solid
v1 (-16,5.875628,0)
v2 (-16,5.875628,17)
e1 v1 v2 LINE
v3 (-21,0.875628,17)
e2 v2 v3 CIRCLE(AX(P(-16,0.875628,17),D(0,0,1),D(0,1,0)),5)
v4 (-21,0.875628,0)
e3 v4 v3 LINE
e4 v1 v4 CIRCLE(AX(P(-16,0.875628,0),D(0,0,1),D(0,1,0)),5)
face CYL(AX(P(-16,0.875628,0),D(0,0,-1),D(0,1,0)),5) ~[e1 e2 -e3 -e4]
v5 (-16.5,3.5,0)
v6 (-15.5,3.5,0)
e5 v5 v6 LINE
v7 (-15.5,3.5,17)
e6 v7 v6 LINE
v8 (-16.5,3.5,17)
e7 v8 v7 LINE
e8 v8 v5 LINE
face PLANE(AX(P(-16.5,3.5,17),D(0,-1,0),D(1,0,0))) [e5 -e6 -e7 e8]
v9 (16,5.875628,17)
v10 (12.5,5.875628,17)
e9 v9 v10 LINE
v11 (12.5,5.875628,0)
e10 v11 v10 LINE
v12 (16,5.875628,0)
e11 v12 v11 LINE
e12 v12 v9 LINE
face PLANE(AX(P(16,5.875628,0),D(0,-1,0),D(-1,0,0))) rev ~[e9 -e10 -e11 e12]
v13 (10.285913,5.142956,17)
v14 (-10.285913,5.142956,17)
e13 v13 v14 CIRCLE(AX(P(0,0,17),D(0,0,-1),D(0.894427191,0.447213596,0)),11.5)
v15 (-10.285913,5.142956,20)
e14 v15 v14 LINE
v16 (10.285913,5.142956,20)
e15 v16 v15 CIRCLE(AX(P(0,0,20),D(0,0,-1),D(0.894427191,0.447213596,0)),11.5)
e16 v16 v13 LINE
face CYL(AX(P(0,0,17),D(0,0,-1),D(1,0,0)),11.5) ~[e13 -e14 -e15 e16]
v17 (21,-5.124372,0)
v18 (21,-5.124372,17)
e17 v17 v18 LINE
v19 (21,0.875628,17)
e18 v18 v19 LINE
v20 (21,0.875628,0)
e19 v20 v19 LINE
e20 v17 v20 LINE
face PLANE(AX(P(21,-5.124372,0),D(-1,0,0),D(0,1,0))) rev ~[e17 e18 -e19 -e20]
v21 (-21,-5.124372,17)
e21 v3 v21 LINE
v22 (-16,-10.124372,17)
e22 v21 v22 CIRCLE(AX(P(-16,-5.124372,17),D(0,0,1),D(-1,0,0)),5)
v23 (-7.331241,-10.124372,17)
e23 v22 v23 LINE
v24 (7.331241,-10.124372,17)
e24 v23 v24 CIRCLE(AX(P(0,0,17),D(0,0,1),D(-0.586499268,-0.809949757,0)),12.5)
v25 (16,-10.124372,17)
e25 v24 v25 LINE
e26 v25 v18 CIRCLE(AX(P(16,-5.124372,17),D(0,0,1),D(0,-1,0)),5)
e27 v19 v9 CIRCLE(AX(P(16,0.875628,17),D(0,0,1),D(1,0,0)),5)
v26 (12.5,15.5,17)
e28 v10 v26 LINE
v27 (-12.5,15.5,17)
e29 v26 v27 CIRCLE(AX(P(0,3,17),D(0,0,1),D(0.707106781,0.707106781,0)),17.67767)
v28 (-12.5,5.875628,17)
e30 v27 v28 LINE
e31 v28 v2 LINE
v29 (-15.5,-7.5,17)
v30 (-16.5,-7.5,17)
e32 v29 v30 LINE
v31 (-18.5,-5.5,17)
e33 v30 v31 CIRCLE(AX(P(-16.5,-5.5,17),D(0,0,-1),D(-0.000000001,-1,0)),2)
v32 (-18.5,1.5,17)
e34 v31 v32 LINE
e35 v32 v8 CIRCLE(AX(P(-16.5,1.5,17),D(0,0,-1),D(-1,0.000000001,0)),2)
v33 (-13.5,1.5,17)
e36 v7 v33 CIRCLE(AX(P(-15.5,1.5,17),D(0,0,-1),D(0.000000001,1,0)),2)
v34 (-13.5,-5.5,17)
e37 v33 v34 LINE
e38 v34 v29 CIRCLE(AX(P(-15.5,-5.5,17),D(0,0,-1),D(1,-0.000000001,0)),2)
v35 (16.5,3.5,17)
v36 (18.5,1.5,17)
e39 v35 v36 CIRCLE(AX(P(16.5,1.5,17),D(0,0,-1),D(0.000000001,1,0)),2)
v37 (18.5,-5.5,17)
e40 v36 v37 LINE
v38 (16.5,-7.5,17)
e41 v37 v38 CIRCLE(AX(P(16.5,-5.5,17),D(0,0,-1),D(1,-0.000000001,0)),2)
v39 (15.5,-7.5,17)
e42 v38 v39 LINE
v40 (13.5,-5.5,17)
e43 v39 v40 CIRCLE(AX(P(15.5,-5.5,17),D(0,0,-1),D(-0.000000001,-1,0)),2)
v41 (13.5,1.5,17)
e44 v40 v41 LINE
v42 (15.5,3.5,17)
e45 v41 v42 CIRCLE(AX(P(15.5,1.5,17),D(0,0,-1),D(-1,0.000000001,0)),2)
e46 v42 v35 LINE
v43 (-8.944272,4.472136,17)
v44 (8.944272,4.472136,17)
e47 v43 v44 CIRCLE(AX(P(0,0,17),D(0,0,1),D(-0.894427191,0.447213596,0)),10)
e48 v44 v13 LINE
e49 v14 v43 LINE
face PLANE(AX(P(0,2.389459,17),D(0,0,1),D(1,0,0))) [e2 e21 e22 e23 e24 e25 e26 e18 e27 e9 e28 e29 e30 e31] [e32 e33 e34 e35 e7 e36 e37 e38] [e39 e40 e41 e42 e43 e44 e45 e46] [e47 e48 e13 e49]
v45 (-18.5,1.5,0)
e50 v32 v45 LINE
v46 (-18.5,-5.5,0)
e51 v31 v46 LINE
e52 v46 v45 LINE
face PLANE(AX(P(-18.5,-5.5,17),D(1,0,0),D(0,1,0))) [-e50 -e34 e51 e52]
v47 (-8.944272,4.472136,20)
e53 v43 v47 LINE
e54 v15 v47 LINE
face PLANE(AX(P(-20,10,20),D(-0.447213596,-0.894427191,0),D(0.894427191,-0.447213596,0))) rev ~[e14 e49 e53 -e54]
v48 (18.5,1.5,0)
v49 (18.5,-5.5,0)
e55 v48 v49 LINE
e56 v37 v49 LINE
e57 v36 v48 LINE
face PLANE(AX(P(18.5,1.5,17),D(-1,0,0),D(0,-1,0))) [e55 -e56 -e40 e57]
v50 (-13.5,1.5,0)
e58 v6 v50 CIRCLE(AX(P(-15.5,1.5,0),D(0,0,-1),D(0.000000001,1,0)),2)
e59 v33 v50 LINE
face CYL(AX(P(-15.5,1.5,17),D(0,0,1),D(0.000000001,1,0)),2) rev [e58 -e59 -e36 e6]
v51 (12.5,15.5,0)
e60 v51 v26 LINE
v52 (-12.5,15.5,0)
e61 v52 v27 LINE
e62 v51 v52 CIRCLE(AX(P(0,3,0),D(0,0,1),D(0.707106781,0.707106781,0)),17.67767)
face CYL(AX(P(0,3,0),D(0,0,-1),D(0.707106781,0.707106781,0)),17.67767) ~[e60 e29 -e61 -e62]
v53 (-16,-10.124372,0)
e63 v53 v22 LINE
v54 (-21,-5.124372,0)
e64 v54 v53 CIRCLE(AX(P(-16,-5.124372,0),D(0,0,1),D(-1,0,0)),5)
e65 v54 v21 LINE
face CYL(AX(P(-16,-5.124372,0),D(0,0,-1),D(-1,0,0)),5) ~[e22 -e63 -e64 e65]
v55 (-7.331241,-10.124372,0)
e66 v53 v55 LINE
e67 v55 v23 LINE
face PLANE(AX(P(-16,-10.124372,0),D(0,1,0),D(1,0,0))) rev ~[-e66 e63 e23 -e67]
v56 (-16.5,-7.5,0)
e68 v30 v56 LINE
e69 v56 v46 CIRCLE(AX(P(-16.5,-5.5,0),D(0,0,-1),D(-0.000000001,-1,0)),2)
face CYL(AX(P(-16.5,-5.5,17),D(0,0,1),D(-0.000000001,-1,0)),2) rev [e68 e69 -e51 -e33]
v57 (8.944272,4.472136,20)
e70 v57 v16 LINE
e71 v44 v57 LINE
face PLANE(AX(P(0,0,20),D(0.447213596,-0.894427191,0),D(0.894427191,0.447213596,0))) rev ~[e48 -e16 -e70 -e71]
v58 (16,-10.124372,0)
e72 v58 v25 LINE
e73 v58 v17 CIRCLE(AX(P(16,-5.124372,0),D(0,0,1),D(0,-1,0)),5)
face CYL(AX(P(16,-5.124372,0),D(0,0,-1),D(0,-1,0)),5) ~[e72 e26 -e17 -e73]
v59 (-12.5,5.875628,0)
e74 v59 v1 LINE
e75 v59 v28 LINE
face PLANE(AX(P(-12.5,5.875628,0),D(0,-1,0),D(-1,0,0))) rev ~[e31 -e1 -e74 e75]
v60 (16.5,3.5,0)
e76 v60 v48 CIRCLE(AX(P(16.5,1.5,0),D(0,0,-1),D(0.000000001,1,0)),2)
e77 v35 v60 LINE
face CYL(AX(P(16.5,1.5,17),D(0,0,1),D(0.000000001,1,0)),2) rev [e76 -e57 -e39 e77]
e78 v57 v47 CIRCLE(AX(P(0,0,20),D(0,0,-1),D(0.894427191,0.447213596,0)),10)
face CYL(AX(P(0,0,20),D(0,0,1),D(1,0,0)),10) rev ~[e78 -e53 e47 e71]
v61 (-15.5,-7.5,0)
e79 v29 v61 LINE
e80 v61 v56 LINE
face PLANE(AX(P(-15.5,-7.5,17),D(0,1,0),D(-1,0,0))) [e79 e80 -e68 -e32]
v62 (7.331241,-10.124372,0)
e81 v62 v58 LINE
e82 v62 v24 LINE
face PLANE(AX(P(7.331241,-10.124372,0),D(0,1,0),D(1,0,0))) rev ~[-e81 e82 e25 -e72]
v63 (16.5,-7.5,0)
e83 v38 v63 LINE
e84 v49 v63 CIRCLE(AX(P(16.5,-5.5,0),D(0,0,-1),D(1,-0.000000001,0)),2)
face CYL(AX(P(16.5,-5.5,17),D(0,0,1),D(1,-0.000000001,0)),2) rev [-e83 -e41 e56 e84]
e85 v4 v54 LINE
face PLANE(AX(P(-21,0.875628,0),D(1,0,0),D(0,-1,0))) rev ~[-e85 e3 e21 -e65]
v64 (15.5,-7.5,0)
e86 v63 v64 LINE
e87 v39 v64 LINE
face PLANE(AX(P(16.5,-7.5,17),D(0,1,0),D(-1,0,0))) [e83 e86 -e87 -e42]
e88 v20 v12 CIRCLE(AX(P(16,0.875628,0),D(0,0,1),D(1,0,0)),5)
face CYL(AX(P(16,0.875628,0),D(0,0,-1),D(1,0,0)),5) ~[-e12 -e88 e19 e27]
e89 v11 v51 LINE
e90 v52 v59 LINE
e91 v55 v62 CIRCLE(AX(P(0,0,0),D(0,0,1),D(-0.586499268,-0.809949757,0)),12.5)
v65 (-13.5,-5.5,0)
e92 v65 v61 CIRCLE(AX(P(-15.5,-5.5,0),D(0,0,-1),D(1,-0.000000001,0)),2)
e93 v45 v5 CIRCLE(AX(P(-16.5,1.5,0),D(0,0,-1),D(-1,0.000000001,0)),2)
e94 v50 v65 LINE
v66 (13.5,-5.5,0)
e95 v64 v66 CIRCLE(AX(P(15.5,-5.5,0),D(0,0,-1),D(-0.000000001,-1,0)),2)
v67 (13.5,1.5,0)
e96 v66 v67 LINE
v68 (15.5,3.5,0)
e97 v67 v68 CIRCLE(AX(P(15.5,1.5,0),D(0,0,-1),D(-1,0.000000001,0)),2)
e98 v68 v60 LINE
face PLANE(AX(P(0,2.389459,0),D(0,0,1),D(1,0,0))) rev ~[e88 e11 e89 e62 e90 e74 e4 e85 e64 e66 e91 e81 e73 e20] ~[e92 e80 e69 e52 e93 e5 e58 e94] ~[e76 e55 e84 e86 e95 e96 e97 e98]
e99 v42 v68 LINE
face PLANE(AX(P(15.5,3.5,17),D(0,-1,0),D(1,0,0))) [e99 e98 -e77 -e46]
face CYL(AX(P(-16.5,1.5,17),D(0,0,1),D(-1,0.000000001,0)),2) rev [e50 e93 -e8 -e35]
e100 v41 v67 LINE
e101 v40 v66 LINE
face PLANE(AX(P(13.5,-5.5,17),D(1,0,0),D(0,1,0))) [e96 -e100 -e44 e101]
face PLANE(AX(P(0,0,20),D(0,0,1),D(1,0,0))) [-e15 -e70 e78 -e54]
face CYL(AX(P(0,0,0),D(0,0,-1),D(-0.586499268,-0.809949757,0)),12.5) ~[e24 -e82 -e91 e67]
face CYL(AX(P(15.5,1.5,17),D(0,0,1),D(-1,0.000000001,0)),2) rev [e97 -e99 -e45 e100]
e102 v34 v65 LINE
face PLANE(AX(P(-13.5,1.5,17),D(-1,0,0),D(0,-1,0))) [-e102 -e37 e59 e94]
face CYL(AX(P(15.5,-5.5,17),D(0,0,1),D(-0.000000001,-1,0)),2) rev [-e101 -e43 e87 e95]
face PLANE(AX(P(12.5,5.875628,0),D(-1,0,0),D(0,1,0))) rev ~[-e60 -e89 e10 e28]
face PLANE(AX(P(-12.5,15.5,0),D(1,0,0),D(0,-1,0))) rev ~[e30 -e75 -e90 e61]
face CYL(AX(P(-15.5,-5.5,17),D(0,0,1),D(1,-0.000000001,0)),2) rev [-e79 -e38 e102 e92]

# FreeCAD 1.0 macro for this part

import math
import FreeCAD as App
import Part
import Sketcher
Q = App.Units.Quantity

doc = App.newDocument("Part")
body = doc.addObject("PartDesign::Body", "Body")

# Sketch on XY plane
sketch1 = body.newObject("Sketcher::SketchObject", "Sketch")
sketch1.AttachmentSupport = (doc.getObject("XY_Plane"), [""])
sketch1.MapMode = "FlatFace"
sketch1.addGeometry([
    Part.LineSegment(App.Vector(-16, -10.1, 0), App.Vector(-7.3, -10.1, 0)),  # 0
    Part.ArcOfCircle(Part.Circle(App.Vector(0, 0, 0), App.Vector(0, 0, 1), 12.5), math.radians(-126), math.radians(-54)),  # 1
    Part.LineSegment(App.Vector(7.3, -10.1, 0), App.Vector(16, -10.1, 0)),  # 2
    Part.ArcOfCircle(Part.Circle(App.Vector(16, -5.1, 0), App.Vector(0, 0, 1), 5), math.radians(-90), math.radians(0)),  # 3
    Part.LineSegment(App.Vector(21, -5.1, 0), App.Vector(21, 0.9, 0)),  # 4
    Part.ArcOfCircle(Part.Circle(App.Vector(16, 0.9, 0), App.Vector(0, 0, 1), 5), math.radians(0), math.radians(90)),  # 5
    Part.LineSegment(App.Vector(16, 5.9, 0), App.Vector(12.5, 5.9, 0)),  # 6
    Part.LineSegment(App.Vector(12.5, 5.9, 0), App.Vector(12.5, 15.5, 0)),  # 7
    Part.ArcOfCircle(Part.Circle(App.Vector(0, 3, 0), App.Vector(0, 0, 1), 17.7), math.radians(45), math.radians(135)),  # 8
    Part.LineSegment(App.Vector(-12.5, 15.5, 0), App.Vector(-12.5, 5.9, 0)),  # 9
    Part.LineSegment(App.Vector(-12.5, 5.9, 0), App.Vector(-16, 5.9, 0)),  # 10
    Part.ArcOfCircle(Part.Circle(App.Vector(-16, 0.9, 0), App.Vector(0, 0, 1), 5), math.radians(90), math.radians(180)),  # 11
    Part.LineSegment(App.Vector(-21, 0.9, 0), App.Vector(-21, -5.1, 0)),  # 12
    Part.ArcOfCircle(Part.Circle(App.Vector(-16, -5.1, 0), App.Vector(0, 0, 1), 5), math.radians(180), math.radians(270)),  # 13
], False)
sketch1.addConstraint([
    Sketcher.Constraint("Coincident", 0, 2, 1, 1),
    Sketcher.Constraint("Coincident", 1, 2, 2, 1),
    Sketcher.Constraint("Tangent", 2, 2, 3, 1),
    Sketcher.Constraint("Tangent", 3, 2, 4, 1),
    Sketcher.Constraint("Tangent", 4, 2, 5, 1),
    Sketcher.Constraint("Tangent", 5, 2, 6, 1),
    Sketcher.Constraint("Coincident", 6, 2, 7, 1),
    Sketcher.Constraint("Coincident", 7, 2, 8, 1),
    Sketcher.Constraint("Coincident", 8, 2, 9, 1),
    Sketcher.Constraint("Coincident", 9, 2, 10, 1),
    Sketcher.Constraint("Tangent", 10, 2, 11, 1),
    Sketcher.Constraint("Tangent", 11, 2, 12, 1),
    Sketcher.Constraint("Tangent", 12, 2, 13, 1),
    Sketcher.Constraint("Tangent", 13, 2, 0, 1),
    Sketcher.Constraint("Horizontal", 0),
    Sketcher.Constraint("Horizontal", 2),
    Sketcher.Constraint("Vertical", 4),
    Sketcher.Constraint("Horizontal", 6),
    Sketcher.Constraint("Vertical", 7),
    Sketcher.Constraint("Vertical", 9),
    Sketcher.Constraint("Horizontal", 10),
    Sketcher.Constraint("Vertical", 12),
    Sketcher.Constraint("Coincident", 1, 3, -1, 1),
    Sketcher.Constraint("Equal", 3, 5),
    Sketcher.Constraint("Equal", 5, 11),
    Sketcher.Constraint("Equal", 11, 13),
    Sketcher.Constraint("Symmetric", 5, 3, 11, 3, -2),
    Sketcher.Constraint("Symmetric", 7, 2, 8, 2, -2),
    Sketcher.Constraint("Horizontal", 3, 3, 13, 3),
    Sketcher.Constraint("Radius", 3, Q("5 mm")),
    Sketcher.Constraint("Radius", 1, Q("12.5 mm")),
    Sketcher.Constraint("DistanceY", 4, 1, 4, 2, Q("6 mm")),
    Sketcher.Constraint("DistanceX", 6, 2, 6, 1, Q("3.5 mm")),
    Sketcher.Constraint("DistanceX", -1, 1, 3, 3, Q("16 mm")),
    Sketcher.Constraint("DistanceY", -1, 1, 8, 3, Q("3 mm")),
    Sketcher.Constraint("DistanceY", -1, 1, 7, 2, Q("15.5 mm")),
    Sketcher.Constraint("DistanceX", 0, 1, 0, 2, Q("8.668759 mm")),
])
pad1 = body.newObject("PartDesign::Pad", "Pad")
pad1.Profile = sketch1
pad1.Length = 17

# Sketch on XY plane
sketch2 = body.newObject("Sketcher::SketchObject", "Sketch001")
sketch2.AttachmentSupport = (doc.getObject("XY_Plane"), [""])
sketch2.MapMode = "FlatFace"
sketch2.AttachmentOffset = App.Placement(App.Vector(0, 0, 17), App.Rotation())
sketch2.addGeometry([
    Part.LineSegment(App.Vector(-15.5, 3.5, 0), App.Vector(-16.5, 3.5, 0)),  # 0
    Part.ArcOfCircle(Part.Circle(App.Vector(-16.5, 1.5, 0), App.Vector(0, 0, 1), 2), math.radians(90), math.radians(180)),  # 1
    Part.LineSegment(App.Vector(-18.5, 1.5, 0), App.Vector(-18.5, -5.5, 0)),  # 2
    Part.ArcOfCircle(Part.Circle(App.Vector(-16.5, -5.5, 0), App.Vector(0, 0, 1), 2), math.radians(-180), math.radians(-90)),  # 3
    Part.LineSegment(App.Vector(-16.5, -7.5, 0), App.Vector(-15.5, -7.5, 0)),  # 4
    Part.ArcOfCircle(Part.Circle(App.Vector(-15.5, -5.5, 0), App.Vector(0, 0, 1), 2), math.radians(-90), math.radians(0)),  # 5
    Part.LineSegment(App.Vector(-13.5, -5.5, 0), App.Vector(-13.5, 1.5, 0)),  # 6
    Part.ArcOfCircle(Part.Circle(App.Vector(-15.5, 1.5, 0), App.Vector(0, 0, 1), 2), math.radians(0), math.radians(90)),  # 7
    Part.LineSegment(App.Vector(16.5, 3.5, 0), App.Vector(15.5, 3.5, 0)),  # 8
    Part.ArcOfCircle(Part.Circle(App.Vector(15.5, 1.5, 0), App.Vector(0, 0, 1), 2), math.radians(90), math.radians(180)),  # 9
    Part.LineSegment(App.Vector(13.5, 1.5, 0), App.Vector(13.5, -5.5, 0)),  # 10
    Part.ArcOfCircle(Part.Circle(App.Vector(15.5, -5.5, 0), App.Vector(0, 0, 1), 2), math.radians(-180), math.radians(-90)),  # 11
    Part.LineSegment(App.Vector(15.5, -7.5, 0), App.Vector(16.5, -7.5, 0)),  # 12
    Part.ArcOfCircle(Part.Circle(App.Vector(16.5, -5.5, 0), App.Vector(0, 0, 1), 2), math.radians(-90), math.radians(0)),  # 13
    Part.LineSegment(App.Vector(18.5, -5.5, 0), App.Vector(18.5, 1.5, 0)),  # 14
    Part.ArcOfCircle(Part.Circle(App.Vector(16.5, 1.5, 0), App.Vector(0, 0, 1), 2), math.radians(0), math.radians(90)),  # 15
], False)
sketch2.addConstraint([
    Sketcher.Constraint("Tangent", 0, 2, 1, 1),
    Sketcher.Constraint("Tangent", 1, 2, 2, 1),
    Sketcher.Constraint("Tangent", 2, 2, 3, 1),
    Sketcher.Constraint("Tangent", 3, 2, 4, 1),
    Sketcher.Constraint("Tangent", 4, 2, 5, 1),
    Sketcher.Constraint("Tangent", 5, 2, 6, 1),
    Sketcher.Constraint("Tangent", 6, 2, 7, 1),
    Sketcher.Constraint("Tangent", 7, 2, 0, 1),
    Sketcher.Constraint("Tangent", 8, 2, 9, 1),
    Sketcher.Constraint("Tangent", 9, 2, 10, 1),
    Sketcher.Constraint("Tangent", 10, 2, 11, 1),
    Sketcher.Constraint("Tangent", 11, 2, 12, 1),
    Sketcher.Constraint("Tangent", 12, 2, 13, 1),
    Sketcher.Constraint("Tangent", 13, 2, 14, 1),
    Sketcher.Constraint("Tangent", 14, 2, 15, 1),
    Sketcher.Constraint("Tangent", 15, 2, 8, 1),
    Sketcher.Constraint("Horizontal", 0),
    Sketcher.Constraint("Vertical", 2),
    Sketcher.Constraint("Horizontal", 4),
    Sketcher.Constraint("Vertical", 6),
    Sketcher.Constraint("Horizontal", 8),
    Sketcher.Constraint("Vertical", 10),
    Sketcher.Constraint("Horizontal", 12),
    Sketcher.Constraint("Vertical", 14),
    Sketcher.Constraint("Equal", 1, 3),
    Sketcher.Constraint("Equal", 3, 5),
    Sketcher.Constraint("Equal", 5, 7),
    Sketcher.Constraint("Equal", 7, 9),
    Sketcher.Constraint("Equal", 9, 11),
    Sketcher.Constraint("Equal", 11, 13),
    Sketcher.Constraint("Equal", 13, 15),
    Sketcher.Constraint("Symmetric", 7, 3, 9, 3, -2),
    Sketcher.Constraint("Symmetric", 3, 3, 13, 3, -2),
    Sketcher.Constraint("Radius", 1, Q("2 mm")),
    Sketcher.Constraint("DistanceX", 0, 2, 0, 1, Q("1 mm")),
    Sketcher.Constraint("DistanceY", 2, 2, 2, 1, Q("7 mm")),
    Sketcher.Constraint("DistanceX", 7, 3, 9, 3, Q("31 mm")),
    Sketcher.Constraint("DistanceY", -1, 1, 1, 3, Q("1.5 mm")),
])
pocket1 = body.newObject("PartDesign::Pocket", "Pocket")
pocket1.Profile = sketch2
pocket1.Length = 17

# Sketch on XY plane
sketch3 = body.newObject("Sketcher::SketchObject", "Sketch002")
sketch3.AttachmentSupport = (doc.getObject("XY_Plane"), [""])
sketch3.MapMode = "FlatFace"
sketch3.AttachmentOffset = App.Placement(App.Vector(0, 0, 17), App.Rotation())
sketch3.addGeometry(Part.Circle(App.Vector(0, 0, 0), App.Vector(0, 0, 1), 12), False)
sketch3.addConstraint([
    Sketcher.Constraint("Coincident", 0, 3, -1, 1),
    Sketcher.Constraint("Diameter", 0, Q("23 mm")),
])
pad2 = body.newObject("PartDesign::Pad", "Pad001")
pad2.Profile = sketch3
pad2.Length = 3

# Sketch on XY plane
sketch4 = body.newObject("Sketcher::SketchObject", "Sketch003")
sketch4.AttachmentSupport = (doc.getObject("XY_Plane"), [""])
sketch4.MapMode = "FlatFace"
sketch4.AttachmentOffset = App.Placement(App.Vector(0, 0, 20), App.Rotation())
sketch4.addGeometry(Part.Circle(App.Vector(0, 0, 0), App.Vector(0, 0, 1), 10), False)
sketch4.addConstraint([
    Sketcher.Constraint("Coincident", 0, 3, -1, 1),
    Sketcher.Constraint("Diameter", 0, Q("20 mm")),
])
pocket2 = body.newObject("PartDesign::Pocket", "Pocket001")
pocket2.Profile = sketch4
pocket2.Length = 3

# Sketch on XY plane
sketch5 = body.newObject("Sketcher::SketchObject", "Sketch004")
sketch5.AttachmentSupport = (doc.getObject("XY_Plane"), [""])
sketch5.MapMode = "FlatFace"
sketch5.AttachmentOffset = App.Placement(App.Vector(0, 0, 20), App.Rotation())
sketch5.addGeometry([
    Part.LineSegment(App.Vector(-20, 10, 0), App.Vector(0, 0, 0)),
    Part.LineSegment(App.Vector(0, 0, 0), App.Vector(20, 10, 0)),
    Part.ArcOfCircle(Part.Circle(App.Vector(0, 0, 0), App.Vector(0, 0, 1), 22), math.radians(27), math.radians(153)),
], False)
sketch5.addConstraint([
    Sketcher.Constraint("Coincident", 0, 2, 1, 1),
    Sketcher.Constraint("Coincident", 1, 2, 2, 1),
    Sketcher.Constraint("Coincident", 2, 2, 0, 1),
    Sketcher.Constraint("Coincident", 2, 3, -1, 1),
    Sketcher.Constraint("Coincident", 0, 2, -1, 1),
    Sketcher.Constraint("Horizontal", 1, 2, 2, 2),
    Sketcher.Constraint("DistanceX", -1, 1, 1, 2, Q("20 mm")),
    Sketcher.Constraint("DistanceY", -1, 1, 1, 2, Q("10 mm")),
])
pocket3 = body.newObject("PartDesign::Pocket", "Pocket002")
pocket3.Profile = sketch5
pocket3.Length = 3

doc.recompute()
